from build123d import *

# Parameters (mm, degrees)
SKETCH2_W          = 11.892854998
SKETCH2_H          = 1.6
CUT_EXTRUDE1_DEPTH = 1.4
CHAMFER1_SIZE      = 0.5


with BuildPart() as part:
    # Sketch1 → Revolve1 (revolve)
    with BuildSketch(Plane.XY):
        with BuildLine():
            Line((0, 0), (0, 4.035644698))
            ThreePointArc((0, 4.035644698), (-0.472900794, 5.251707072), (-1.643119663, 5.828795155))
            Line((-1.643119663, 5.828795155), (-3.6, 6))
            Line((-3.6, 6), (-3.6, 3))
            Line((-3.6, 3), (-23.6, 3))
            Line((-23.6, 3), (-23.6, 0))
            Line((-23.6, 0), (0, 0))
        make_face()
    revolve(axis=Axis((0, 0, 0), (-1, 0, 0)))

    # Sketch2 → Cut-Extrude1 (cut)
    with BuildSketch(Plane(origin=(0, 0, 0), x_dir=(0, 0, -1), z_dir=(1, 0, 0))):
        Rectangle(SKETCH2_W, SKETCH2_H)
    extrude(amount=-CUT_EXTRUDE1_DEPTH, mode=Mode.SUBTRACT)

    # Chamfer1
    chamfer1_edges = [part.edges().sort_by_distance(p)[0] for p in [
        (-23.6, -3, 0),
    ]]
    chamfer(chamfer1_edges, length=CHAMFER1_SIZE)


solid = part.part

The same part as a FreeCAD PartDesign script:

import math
import FreeCAD as App
import Part
import Sketcher
from FreeCAD import Vector
Q = App.Units.Quantity


def edges_at(feature, points):
    """Names of the edges that pass closest to the given points."""
    edges = feature.Shape.Edges
    near = lambda p: min(range(len(edges)), key=lambda i: edges[i].distToShape(Part.Vertex(*p))[0])
    return sorted({f"Edge{near(p) + 1}" for p in points})


def add_polygon(sketch, points):
    """Adds a closed chain of lines whose ends are joined by coincident constraints."""
    first, n = sketch.GeometryCount, len(points)
    for a, b in zip(points, points[1:] + points[:1]):
        sketch.addGeometry(Part.LineSegment(App.Vector(*a, 0), App.Vector(*b, 0)), False)
    for i in range(n):
        sketch.addConstraint(Sketcher.Constraint("Coincident", first + i, 2, first + (i + 1) % n, 1))

doc = App.newDocument("Part")
params = doc.addObject("Spreadsheet::Sheet", "Params")
for row, (alias, value) in enumerate([
    ("sketch1_radius", "1.8 mm"),
    ("sketch1_width", "20 mm"),
    ("sketch1_height", "3 mm"),
    ("sketch1_width2", "23.6 mm"),
    ("revolution_angle", "360 deg"),
    ("sketch2_width", "1.6 mm"),
    ("pocket1_length", "1.4 mm"),
    ("chamfer_size", "0.5 mm"),
], start=1):
    params.set(f"A{row}", alias)
    params.set(f"B{row}", "=" + value)
    params.setAlias(f"B{row}", alias)

body = doc.addObject("PartDesign::Body", "Body")

sketch1 = body.newObject("Sketcher::SketchObject", "Sketch")
sketch1.AttachmentSupport = (doc.getObject("XY_Plane"), [""])
sketch1.MapMode = "FlatFace"
sketch1.addGeometry(Part.LineSegment(Vector(0, 0, 0), Vector(0, 4, 0)), False)
sketch1.addGeometry(Part.ArcOfCircle(Part.Circle(Vector(-1.8, 4, 0), Vector(0, 0, 1), 1.8), math.radians(0), math.radians(85)), False)
sketch1.addGeometry(Part.LineSegment(Vector(-1.6, 5.8, 0), Vector(-3.6, 6, 0)), False)
sketch1.addGeometry(Part.LineSegment(Vector(-3.6, 6, 0), Vector(-3.6, 3, 0)), False)
sketch1.addGeometry(Part.LineSegment(Vector(-3.6, 3, 0), Vector(-23.6, 3, 0)), False)
sketch1.addGeometry(Part.LineSegment(Vector(-23.6, 3, 0), Vector(-23.6, 0, 0)), False)
sketch1.addGeometry(Part.LineSegment(Vector(-23.6, 0, 0), Vector(0, 0, 0)), False)
sketch1.addConstraint(Sketcher.Constraint("Tangent", 0, 2, 1, 1))
sketch1.addConstraint(Sketcher.Constraint("Tangent", 1, 2, 2, 1))
sketch1.addConstraint(Sketcher.Constraint("Coincident", 2, 2, 3, 1))
sketch1.addConstraint(Sketcher.Constraint("Coincident", 3, 2, 4, 1))
sketch1.addConstraint(Sketcher.Constraint("Coincident", 4, 2, 5, 1))
sketch1.addConstraint(Sketcher.Constraint("Coincident", 5, 2, 6, 1))
sketch1.addConstraint(Sketcher.Constraint("Coincident", 6, 2, 0, 1))
sketch1.addConstraint(Sketcher.Constraint("Vertical", 0))
sketch1.addConstraint(Sketcher.Constraint("Vertical", 3))
sketch1.addConstraint(Sketcher.Constraint("Horizontal", 4))
sketch1.addConstraint(Sketcher.Constraint("Vertical", 5))
sketch1.addConstraint(Sketcher.Constraint("Horizontal", 6))
sketch1.addConstraint(Sketcher.Constraint("Coincident", 6, 2, -1, 1))
sketch1.addConstraint(Sketcher.Constraint("Equal", 3, 5))
sketch1.addConstraint(Sketcher.Constraint("Radius", 1, 1.8))
sketch1.addConstraint(Sketcher.Constraint("DistanceX", 4, 2, 4, 1, 20.0))
sketch1.addConstraint(Sketcher.Constraint("DistanceY", 3, 2, 3, 1, 3.0))
sketch1.addConstraint(Sketcher.Constraint("Angle", 2, Q("175 deg")))
sketch1.addConstraint(Sketcher.Constraint("DistanceX", 6, 1, 6, 2, 23.6))
sketch1.setExpression("Constraints[14]", "Params.sketch1_radius")
sketch1.setExpression("Constraints[15]", "Params.sketch1_width")
sketch1.setExpression("Constraints[16]", "Params.sketch1_height")
sketch1.setExpression("Constraints[18]", "Params.sketch1_width2")
revolution = body.newObject("PartDesign::Revolution", "Revolution")
revolution.Profile = sketch1
revolution.ReferenceAxis = (sketch1, ["H_Axis"])
revolution.setExpression("Angle", "Params.revolution_angle")

sketch2 = body.newObject("Sketcher::SketchObject", "Sketch001")
sketch2.AttachmentSupport = (doc.getObject("YZ_Plane"), [""])
sketch2.MapMode = "FlatFace"
add_polygon(sketch2, [(0.8, 5.9), (-0.8, 5.9), (-0.8, -5.9), (0.8, -5.9)])
sketch2.addConstraint(Sketcher.Constraint("Horizontal", 0))
sketch2.addConstraint(Sketcher.Constraint("Vertical", 1))
sketch2.addConstraint(Sketcher.Constraint("Horizontal", 2))
sketch2.addConstraint(Sketcher.Constraint("Vertical", 3))
sketch2.addConstraint(Sketcher.Constraint("Symmetric", 0, 2, 2, 2, -1, 1))
sketch2.addConstraint(Sketcher.Constraint("DistanceX", 0, 2, 0, 1, 1.6))
sketch2.addConstraint(Sketcher.Constraint("DistanceY", 1, 2, 1, 1, 11.892855))
sketch2.setExpression("Constraints[9]", "Params.sketch2_width")
pocket1 = body.newObject("PartDesign::Pocket", "Pocket")
pocket1.Profile = sketch2
pocket1.setExpression("Length", "Params.pocket1_length")
doc.recompute()

chamfer = body.newObject("PartDesign::Chamfer", "Chamfer")
chamfer.Base = (pocket1, edges_at(pocket1, [(-23.6, -3, 0)]))
chamfer.setExpression("Size", "Params.chamfer_size")

doc.recompute()
